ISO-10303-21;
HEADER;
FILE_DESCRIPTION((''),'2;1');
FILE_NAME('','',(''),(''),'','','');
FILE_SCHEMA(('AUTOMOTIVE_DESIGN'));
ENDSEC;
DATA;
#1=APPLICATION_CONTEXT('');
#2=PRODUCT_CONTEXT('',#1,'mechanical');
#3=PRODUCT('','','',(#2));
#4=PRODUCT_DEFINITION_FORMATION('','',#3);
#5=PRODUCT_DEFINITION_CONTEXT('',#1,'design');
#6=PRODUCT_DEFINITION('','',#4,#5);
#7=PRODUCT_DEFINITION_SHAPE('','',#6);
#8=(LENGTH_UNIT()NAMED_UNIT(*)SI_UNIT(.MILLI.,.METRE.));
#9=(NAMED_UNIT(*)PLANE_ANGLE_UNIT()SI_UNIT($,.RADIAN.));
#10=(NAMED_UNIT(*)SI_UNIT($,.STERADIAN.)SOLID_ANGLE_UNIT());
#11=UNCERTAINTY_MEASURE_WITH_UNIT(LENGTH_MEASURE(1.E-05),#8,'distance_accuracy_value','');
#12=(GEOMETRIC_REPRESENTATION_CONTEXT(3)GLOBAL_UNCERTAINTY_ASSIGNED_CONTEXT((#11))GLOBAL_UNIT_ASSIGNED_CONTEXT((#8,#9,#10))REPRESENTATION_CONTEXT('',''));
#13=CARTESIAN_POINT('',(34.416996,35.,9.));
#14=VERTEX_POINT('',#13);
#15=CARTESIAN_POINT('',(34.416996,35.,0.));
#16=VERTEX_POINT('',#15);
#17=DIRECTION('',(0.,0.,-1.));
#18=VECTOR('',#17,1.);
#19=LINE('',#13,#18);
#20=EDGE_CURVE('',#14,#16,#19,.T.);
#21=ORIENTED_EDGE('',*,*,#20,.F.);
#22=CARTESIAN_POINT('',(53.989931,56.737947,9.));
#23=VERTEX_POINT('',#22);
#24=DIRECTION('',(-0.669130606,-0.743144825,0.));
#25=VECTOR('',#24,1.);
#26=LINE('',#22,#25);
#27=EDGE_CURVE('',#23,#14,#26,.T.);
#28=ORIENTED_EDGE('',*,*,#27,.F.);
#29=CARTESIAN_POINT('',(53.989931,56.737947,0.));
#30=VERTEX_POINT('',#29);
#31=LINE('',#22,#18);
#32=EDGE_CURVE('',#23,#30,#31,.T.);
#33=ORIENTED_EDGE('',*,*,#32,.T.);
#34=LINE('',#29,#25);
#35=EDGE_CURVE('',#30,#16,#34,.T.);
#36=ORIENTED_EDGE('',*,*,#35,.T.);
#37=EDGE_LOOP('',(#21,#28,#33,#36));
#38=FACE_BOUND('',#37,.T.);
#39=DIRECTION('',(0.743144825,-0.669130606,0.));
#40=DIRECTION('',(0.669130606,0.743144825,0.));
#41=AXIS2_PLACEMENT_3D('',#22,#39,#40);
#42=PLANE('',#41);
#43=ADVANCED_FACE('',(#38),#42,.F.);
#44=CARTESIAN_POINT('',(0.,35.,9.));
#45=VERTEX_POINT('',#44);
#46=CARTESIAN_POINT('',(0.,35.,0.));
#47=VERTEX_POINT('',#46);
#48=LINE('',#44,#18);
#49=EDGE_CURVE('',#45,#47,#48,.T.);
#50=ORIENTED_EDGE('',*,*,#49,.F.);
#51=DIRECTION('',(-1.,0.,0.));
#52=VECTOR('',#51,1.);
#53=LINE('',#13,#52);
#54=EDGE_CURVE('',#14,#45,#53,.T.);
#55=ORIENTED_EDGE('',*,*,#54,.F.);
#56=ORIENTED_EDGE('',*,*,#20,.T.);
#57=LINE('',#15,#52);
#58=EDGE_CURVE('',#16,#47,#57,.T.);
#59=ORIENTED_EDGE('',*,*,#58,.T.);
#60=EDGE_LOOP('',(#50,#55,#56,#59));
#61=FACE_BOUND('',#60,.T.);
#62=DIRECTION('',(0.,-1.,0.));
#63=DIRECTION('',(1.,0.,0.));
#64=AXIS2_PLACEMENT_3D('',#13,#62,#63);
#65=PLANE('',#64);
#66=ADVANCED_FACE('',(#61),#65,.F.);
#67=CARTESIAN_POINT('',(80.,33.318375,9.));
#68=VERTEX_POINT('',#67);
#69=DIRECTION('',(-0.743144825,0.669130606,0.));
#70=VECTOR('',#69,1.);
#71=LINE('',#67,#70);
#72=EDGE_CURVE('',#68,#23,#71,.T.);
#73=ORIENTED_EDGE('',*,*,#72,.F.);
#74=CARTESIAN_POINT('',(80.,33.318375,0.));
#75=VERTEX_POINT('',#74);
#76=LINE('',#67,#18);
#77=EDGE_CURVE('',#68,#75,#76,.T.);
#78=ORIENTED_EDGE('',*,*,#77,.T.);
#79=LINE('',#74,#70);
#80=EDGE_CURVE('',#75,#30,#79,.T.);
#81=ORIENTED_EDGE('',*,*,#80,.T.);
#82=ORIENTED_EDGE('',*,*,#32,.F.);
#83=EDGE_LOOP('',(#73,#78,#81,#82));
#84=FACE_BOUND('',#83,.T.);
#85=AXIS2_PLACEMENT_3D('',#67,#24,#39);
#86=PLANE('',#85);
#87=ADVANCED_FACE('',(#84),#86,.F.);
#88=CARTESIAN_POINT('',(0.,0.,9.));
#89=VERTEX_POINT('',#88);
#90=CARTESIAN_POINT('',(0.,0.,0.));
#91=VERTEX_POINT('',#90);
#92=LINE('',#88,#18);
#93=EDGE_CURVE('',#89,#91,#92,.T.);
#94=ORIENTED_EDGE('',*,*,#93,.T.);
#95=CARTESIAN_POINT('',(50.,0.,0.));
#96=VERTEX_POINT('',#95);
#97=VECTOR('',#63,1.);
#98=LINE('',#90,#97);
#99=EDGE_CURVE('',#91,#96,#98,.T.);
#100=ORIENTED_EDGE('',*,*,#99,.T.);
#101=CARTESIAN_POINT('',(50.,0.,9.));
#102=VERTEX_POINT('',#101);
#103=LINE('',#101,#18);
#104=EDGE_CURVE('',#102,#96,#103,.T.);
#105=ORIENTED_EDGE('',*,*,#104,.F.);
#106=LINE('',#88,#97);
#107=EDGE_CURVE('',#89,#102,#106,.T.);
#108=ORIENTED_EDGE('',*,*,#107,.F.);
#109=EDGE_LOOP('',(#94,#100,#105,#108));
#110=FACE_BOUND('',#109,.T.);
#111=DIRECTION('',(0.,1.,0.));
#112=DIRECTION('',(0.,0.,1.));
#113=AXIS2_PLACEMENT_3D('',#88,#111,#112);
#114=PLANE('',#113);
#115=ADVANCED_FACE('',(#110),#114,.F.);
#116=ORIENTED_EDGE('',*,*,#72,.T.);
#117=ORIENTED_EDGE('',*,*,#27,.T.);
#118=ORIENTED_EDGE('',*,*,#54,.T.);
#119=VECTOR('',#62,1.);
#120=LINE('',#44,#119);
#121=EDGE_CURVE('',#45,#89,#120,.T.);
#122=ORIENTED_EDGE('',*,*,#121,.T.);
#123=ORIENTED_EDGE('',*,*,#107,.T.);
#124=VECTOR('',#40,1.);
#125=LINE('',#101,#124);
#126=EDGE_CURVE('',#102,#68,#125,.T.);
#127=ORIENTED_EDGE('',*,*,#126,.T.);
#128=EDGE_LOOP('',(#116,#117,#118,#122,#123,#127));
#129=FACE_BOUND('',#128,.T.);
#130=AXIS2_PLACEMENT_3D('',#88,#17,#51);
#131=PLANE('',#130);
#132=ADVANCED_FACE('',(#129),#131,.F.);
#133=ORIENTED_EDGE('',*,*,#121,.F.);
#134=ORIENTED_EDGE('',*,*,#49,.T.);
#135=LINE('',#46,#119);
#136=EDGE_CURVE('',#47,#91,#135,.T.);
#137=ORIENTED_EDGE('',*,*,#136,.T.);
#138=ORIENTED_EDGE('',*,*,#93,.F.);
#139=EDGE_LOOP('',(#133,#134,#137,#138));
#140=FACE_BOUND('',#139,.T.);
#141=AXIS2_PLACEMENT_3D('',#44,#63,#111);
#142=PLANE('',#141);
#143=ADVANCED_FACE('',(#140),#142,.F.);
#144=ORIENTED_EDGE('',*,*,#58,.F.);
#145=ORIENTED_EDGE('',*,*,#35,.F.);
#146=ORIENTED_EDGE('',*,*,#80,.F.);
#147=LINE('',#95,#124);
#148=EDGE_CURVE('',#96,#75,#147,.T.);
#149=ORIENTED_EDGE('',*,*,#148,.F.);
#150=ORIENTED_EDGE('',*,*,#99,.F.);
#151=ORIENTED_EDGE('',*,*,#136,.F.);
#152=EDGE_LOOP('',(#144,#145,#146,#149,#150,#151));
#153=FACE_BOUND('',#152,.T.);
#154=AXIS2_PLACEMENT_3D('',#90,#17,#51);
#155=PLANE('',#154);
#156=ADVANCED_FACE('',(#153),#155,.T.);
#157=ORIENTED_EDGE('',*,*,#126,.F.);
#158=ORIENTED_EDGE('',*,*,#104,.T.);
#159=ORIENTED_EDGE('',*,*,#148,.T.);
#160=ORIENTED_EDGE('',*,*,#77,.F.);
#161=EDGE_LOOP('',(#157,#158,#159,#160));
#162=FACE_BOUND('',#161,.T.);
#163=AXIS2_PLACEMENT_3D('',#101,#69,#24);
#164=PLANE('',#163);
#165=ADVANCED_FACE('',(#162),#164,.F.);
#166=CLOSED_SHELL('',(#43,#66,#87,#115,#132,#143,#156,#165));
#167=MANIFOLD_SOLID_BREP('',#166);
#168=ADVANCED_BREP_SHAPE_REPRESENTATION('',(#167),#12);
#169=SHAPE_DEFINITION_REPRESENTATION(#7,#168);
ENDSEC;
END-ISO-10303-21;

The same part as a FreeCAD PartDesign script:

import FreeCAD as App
import Part
import Sketcher

V = App.Vector
Q = App.Units.Quantity


def add_polygon(sketch, points):
    """Adds a closed chain of lines whose ends are joined by coincident constraints."""
    first, n = sketch.GeometryCount, len(points)
    for a, b in zip(points, points[1:] + points[:1]):
        sketch.addGeometry(Part.LineSegment(App.Vector(*a, 0), App.Vector(*b, 0)), False)
    for i in range(n):
        sketch.addConstraint(Sketcher.Constraint("Coincident", first + i, 2, first + (i + 1) % n, 1))

doc = App.newDocument("Part")
body = doc.addObject("PartDesign::Body", "Body")

sketch1 = body.newObject("Sketcher::SketchObject", "Sketch")
sketch1.AttachmentSupport = (doc.getObject("XY_Plane"), [""])
sketch1.MapMode = "FlatFace"
add_polygon(sketch1, [(0, 0), (50, 0), (80, 33.318375), (53.989931, 56.737947), (34.416996, 35), (0, 35)])
sketch1.addConstraint([
    Sketcher.Constraint("Horizontal", 0),
    Sketcher.Constraint("Horizontal", 4),
    Sketcher.Constraint("Vertical", 5),
    Sketcher.Constraint("Coincident", 5, 2, -1, 1),
    Sketcher.Constraint("Perpendicular", 1, 2),
    Sketcher.Constraint("Perpendicular", 2, 3),
    Sketcher.Constraint("DistanceX", 0, 1, 0, 2, 50.0),
    Sketcher.Constraint("DistanceY", 5, 2, 5, 1, 35.0),
    Sketcher.Constraint("Angle", 1, Q("48 deg")),
    Sketcher.Constraint("Distance", 2, 35.0),
    Sketcher.Constraint("DistanceX", -1, 1, 1, 2, 80.0),
])
pad1 = body.newObject("PartDesign::Pad", "Pad")
pad1.Profile = sketch1
pad1.Length = 9

doc.recompute()
